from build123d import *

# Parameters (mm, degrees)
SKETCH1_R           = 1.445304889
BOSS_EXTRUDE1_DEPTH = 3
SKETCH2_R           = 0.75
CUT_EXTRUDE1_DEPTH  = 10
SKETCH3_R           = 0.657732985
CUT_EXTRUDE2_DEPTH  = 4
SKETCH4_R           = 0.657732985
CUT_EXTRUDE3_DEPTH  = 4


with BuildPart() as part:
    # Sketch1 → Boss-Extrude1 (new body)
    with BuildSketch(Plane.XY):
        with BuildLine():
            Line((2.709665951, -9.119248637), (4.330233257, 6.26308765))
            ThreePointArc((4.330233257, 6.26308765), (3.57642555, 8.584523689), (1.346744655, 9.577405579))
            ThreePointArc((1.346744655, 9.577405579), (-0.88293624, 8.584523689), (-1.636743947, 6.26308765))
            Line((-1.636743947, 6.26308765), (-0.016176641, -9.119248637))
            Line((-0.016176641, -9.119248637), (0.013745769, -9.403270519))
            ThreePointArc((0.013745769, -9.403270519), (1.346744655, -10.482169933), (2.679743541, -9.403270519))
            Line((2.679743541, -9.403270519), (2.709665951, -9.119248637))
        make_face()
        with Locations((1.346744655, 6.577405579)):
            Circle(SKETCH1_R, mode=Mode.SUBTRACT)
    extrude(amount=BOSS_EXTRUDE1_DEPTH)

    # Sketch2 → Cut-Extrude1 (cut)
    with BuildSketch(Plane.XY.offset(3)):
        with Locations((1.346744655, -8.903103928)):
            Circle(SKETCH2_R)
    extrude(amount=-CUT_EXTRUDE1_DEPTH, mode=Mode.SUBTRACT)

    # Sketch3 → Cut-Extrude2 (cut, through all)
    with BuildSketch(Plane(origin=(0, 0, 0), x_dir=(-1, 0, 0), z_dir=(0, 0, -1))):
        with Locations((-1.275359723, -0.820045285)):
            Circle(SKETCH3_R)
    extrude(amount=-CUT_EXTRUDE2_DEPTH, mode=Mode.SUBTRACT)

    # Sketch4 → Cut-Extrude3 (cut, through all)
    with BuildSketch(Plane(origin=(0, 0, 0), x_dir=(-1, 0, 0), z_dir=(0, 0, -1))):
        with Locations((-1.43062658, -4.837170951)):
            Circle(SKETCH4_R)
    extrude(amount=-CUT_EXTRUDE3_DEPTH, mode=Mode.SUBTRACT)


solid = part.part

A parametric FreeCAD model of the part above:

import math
import FreeCAD as App
import Part
import Sketcher

V = App.Vector

doc = App.newDocument("Part")
params = doc.addObject("Spreadsheet::Sheet", "Params")
for row, (alias, value) in enumerate([
    ("sketch1_radius", "3 mm"),
    ("pad1_length", "3 mm"),
    ("sketch2_diameter", "1.5 mm"),
    ("pocket1_length", "10 mm"),
], start=1):
    params.set(f"A{row}", alias)
    params.set(f"B{row}", "=" + value)
    params.setAlias(f"B{row}", alias)

body = doc.addObject("PartDesign::Body", "Body")

# Sketch on XY plane
sketch1 = body.newObject("Sketcher::SketchObject", "Sketch")
sketch1.AttachmentSupport = (doc.getObject("XY_Plane"), [""])
sketch1.MapMode = "FlatFace"
sketch1.addGeometry([
    Part.LineSegment(V(2.71, -9.12, 0), V(4.33, 6.26, 0)),  # 0
    Part.ArcOfCircle(Part.Circle(V(1.35, 6.58, 0), V(0, 0, 1), 3), math.radians(-6), math.radians(90)),  # 1
    Part.ArcOfCircle(Part.Circle(V(1.35, 6.58, 0), V(0, 0, 1), 3), math.radians(90), math.radians(186)),  # 2
    Part.LineSegment(V(-1.64, 6.26, 0), V(-0.02, -9.12, 0)),  # 3
    Part.LineSegment(V(-0.02, -9.12, 0), V(0.01, -9.4, 0)),  # 4
    Part.ArcOfCircle(Part.Circle(V(1.35, -9.12, 0), V(0, 0, 1), 1.36), math.radians(-168), math.radians(-12)),  # 5
    Part.LineSegment(V(2.68, -9.4, 0), V(2.71, -9.12, 0)),  # 6
    Part.Circle(V(1.35, 6.58, 0), V(0, 0, 1), 1.45),  # 7
], False)
sketch1.addConstraint([
    Sketcher.Constraint("Tangent", 0, 2, 1, 1),
    Sketcher.Constraint("Tangent", 1, 2, 2, 1),
    Sketcher.Constraint("Tangent", 2, 2, 3, 1),
    Sketcher.Constraint("Coincident", 3, 2, 4, 1),
    Sketcher.Constraint("Coincident", 4, 2, 5, 1),
    Sketcher.Constraint("Coincident", 5, 2, 6, 1),
    Sketcher.Constraint("Coincident", 6, 2, 0, 1),
    Sketcher.Constraint("Coincident", 7, 3, 1, 3),
    Sketcher.Constraint("Equal", 1, 2),
    Sketcher.Constraint("Parallel", 3, 4),
    Sketcher.Constraint("Parallel", 0, 6),
    Sketcher.Constraint("Horizontal", 0, 2, 2, 2),
    Sketcher.Constraint("Horizontal", 5, 3, 3, 2),
    Sketcher.Constraint("Horizontal", 4, 2, 5, 2),
    Sketcher.Constraint("Horizontal", 3, 2, 6, 2),
    Sketcher.Constraint("Vertical", 7, 3, 1, 2),
    Sketcher.Constraint("Radius", 1, 3.0),
    Sketcher.Constraint("Diameter", 7, 2.89061),
    Sketcher.Constraint("Radius", 5, 1.362921),
    Sketcher.Constraint("DistanceX", 4, 2, 5, 3, 1.332999),
    Sketcher.Constraint("DistanceY", 5, 3, -1, 1, 9.119249),
    Sketcher.Constraint("DistanceY", 4, 2, 2, 2, 15.666358),
    Sketcher.Constraint("DistanceX", -1, 1, 1, 3, 1.346745),
])
sketch1.setExpression("Constraints[16]", "Params.sketch1_radius")
pad1 = body.newObject("PartDesign::Pad", "Pad")
pad1.Profile = sketch1
pad1.setExpression("Length", "Params.pad1_length")

# Sketch on XY plane
sketch2 = body.newObject("Sketcher::SketchObject", "Sketch001")
sketch2.AttachmentSupport = (doc.getObject("XY_Plane"), [""])
sketch2.MapMode = "FlatFace"
sketch2.AttachmentOffset = App.Placement(V(0, 0, 3), App.Rotation())
sketch2.addGeometry(Part.Circle(V(1.3, -8.9, 0), V(0, 0, 1), 0.8), False)
sketch2.addConstraint([
    Sketcher.Constraint("Diameter", 0, 1.5),
    Sketcher.Constraint("DistanceX", -1, 1, 0, 3, 1.346745),
    Sketcher.Constraint("DistanceY", 0, 3, -1, 1, 8.903104),
])
sketch2.setExpression("Constraints[0]", "Params.sketch2_diameter")
pocket1 = body.newObject("PartDesign::Pocket", "Pocket")
pocket1.Profile = sketch2
pocket1.setExpression("Length", "Params.pocket1_length")

# Sketch on XY plane
sketch3 = body.newObject("Sketcher::SketchObject", "Sketch002")
sketch3.AttachmentSupport = (doc.getObject("XY_Plane"), [""])
sketch3.MapMode = "FlatFace"
sketch3.addGeometry(Part.Circle(V(1.3, -0.8, 0), V(0, 0, 1), 0.7), False)
sketch3.addConstraint([
    Sketcher.Constraint("Diameter", 0, 1.315466),
    Sketcher.Constraint("DistanceX", -1, 1, 0, 3, 1.27536),
    Sketcher.Constraint("DistanceY", 0, 3, -1, 1, 0.820045),
])
pocket2 = body.newObject("PartDesign::Pocket", "Pocket001")
pocket2.Profile = sketch3
pocket2.Type = "ThroughAll"
pocket2.Reversed = True

# Sketch on XY plane
sketch4 = body.newObject("Sketcher::SketchObject", "Sketch003")
sketch4.AttachmentSupport = (doc.getObject("XY_Plane"), [""])
sketch4.MapMode = "FlatFace"
sketch4.addGeometry(Part.Circle(V(1.4, -4.8, 0), V(0, 0, 1), 0.7), False)
sketch4.addConstraint([
    Sketcher.Constraint("Diameter", 0, 1.315466),
    Sketcher.Constraint("DistanceY", 0, 3, -1, 1, 4.837171),
    Sketcher.Constraint("DistanceX", -1, 1, 0, 3, 1.430627),
])
pocket3 = body.newObject("PartDesign::Pocket", "Pocket002")
pocket3.Profile = sketch4
pocket3.Type = "ThroughAll"
pocket3.Reversed = True

doc.recompute()
